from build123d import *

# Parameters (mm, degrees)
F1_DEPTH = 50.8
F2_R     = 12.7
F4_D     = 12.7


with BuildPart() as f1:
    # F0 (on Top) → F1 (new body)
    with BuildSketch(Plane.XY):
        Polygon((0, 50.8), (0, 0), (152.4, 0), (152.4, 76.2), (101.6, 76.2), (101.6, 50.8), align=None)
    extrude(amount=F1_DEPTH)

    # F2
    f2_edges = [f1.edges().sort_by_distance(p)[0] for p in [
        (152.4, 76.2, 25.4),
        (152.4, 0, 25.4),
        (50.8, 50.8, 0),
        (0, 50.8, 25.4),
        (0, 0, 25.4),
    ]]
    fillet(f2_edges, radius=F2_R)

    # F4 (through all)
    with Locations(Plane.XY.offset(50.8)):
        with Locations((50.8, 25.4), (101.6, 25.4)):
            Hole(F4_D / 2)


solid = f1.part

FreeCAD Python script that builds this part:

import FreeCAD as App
import Part
import Sketcher
Q = App.Units.Quantity


def edges_at(feature, points):
    """Names of the edges that pass closest to the given points."""
    edges = feature.Shape.Edges
    near = lambda p: min(range(len(edges)), key=lambda i: edges[i].distToShape(Part.Vertex(*p))[0])
    return sorted({f"Edge{near(p) + 1}" for p in points})

doc = App.newDocument("Part")
body = doc.addObject("PartDesign::Body", "Body")

sketch1 = body.newObject("Sketcher::SketchObject", "Sketch")
sketch1.AttachmentSupport = (doc.getObject("XY_Plane"), [""])
sketch1.MapMode = "FlatFace"
sketch1.addGeometry([
    Part.LineSegment(App.Vector(0, 51, 0), App.Vector(0, 0, 0)),
    Part.LineSegment(App.Vector(0, 0, 0), App.Vector(152, 0, 0)),
    Part.LineSegment(App.Vector(152, 0, 0), App.Vector(152, 76, 0)),
    Part.LineSegment(App.Vector(152, 76, 0), App.Vector(102, 76, 0)),
    Part.LineSegment(App.Vector(102, 76, 0), App.Vector(102, 51, 0)),
    Part.LineSegment(App.Vector(102, 51, 0), App.Vector(0, 51, 0)),
], False)
sketch1.addConstraint([
    Sketcher.Constraint("Coincident", 0, 2, 1, 1),
    Sketcher.Constraint("Coincident", 1, 2, 2, 1),
    Sketcher.Constraint("Coincident", 2, 2, 3, 1),
    Sketcher.Constraint("Coincident", 3, 2, 4, 1),
    Sketcher.Constraint("Coincident", 4, 2, 5, 1),
    Sketcher.Constraint("Coincident", 5, 2, 0, 1),
    Sketcher.Constraint("Vertical", 0),
    Sketcher.Constraint("Horizontal", 1),
    Sketcher.Constraint("Vertical", 2),
    Sketcher.Constraint("Horizontal", 3),
    Sketcher.Constraint("Vertical", 4),
    Sketcher.Constraint("Horizontal", 5),
    Sketcher.Constraint("Coincident", 0, 2, -1, 1),
    Sketcher.Constraint("Equal", 3, 0),
    Sketcher.Constraint("DistanceX", 1, 1, 1, 2, Q("6 in")),
    Sketcher.Constraint("DistanceX", 3, 2, 3, 1, Q("2 in")),
    Sketcher.Constraint("DistanceY", 2, 1, 2, 2, Q("3 in")),
])
pad1 = body.newObject("PartDesign::Pad", "Pad")
pad1.Profile = sketch1
pad1.Length = Q("2 in")
doc.recompute()

fillet = body.newObject("PartDesign::Fillet", "Fillet")
fillet.Base = (pad1, edges_at(pad1, [
    (152.4, 76.2, 25.4),
    (152.4, 0, 25.4),
    (50.8, 50.8, 0),
    (0, 50.8, 25.4),
    (0, 0, 25.4),
]))
fillet.Radius = Q("0.5 in")

sketch2 = body.newObject("Sketcher::SketchObject", "Sketch001")
sketch2.AttachmentSupport = (doc.getObject("XY_Plane"), [""])
sketch2.MapMode = "FlatFace"
sketch2.AttachmentOffset = App.Placement(App.Vector(0, 0, 2 * 25.4), App.Rotation())
sketch2.addGeometry([
    Part.Circle(App.Vector(51, 25, 0), App.Vector(0, 0, 1), 6),
    Part.Circle(App.Vector(102, 25, 0), App.Vector(0, 0, 1), 6),
], False)
sketch2.addConstraint([
    Sketcher.Constraint("Equal", 0, 1),
    Sketcher.Constraint("Horizontal", 0, 3, 1, 3),
    Sketcher.Constraint("Diameter", 0, Q("0.5 in")),
    Sketcher.Constraint("DistanceX", -1, 1, 0, 3, Q("2 in")),
    Sketcher.Constraint("DistanceY", -1, 1, 0, 3, Q("1 in")),
    Sketcher.Constraint("DistanceX", -1, 1, 1, 3, Q("4 in")),
])
doc.recompute()
hole = body.newObject("PartDesign::Hole", "Hole")
hole.Profile = sketch2
hole.ThreadType = "None"
hole.Diameter = Q("0.5 in")
hole.DepthType = "ThroughAll"

doc.recompute()
